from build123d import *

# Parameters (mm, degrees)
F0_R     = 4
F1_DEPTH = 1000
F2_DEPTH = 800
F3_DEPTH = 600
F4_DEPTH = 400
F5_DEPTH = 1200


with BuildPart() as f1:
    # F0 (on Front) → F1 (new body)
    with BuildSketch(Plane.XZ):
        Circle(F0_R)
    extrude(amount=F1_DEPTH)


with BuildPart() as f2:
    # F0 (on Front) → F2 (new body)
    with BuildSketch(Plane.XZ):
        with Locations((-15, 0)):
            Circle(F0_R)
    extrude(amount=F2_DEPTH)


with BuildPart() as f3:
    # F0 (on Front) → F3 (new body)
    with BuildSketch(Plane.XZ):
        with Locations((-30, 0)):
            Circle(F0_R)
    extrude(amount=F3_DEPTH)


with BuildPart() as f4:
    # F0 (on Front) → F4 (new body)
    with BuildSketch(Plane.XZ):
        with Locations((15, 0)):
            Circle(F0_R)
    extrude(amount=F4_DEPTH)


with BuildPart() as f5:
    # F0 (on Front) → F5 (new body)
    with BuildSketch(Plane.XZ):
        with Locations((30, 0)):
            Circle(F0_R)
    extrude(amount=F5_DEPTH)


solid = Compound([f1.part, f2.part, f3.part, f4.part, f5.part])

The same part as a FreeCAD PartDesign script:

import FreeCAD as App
import Part
import Sketcher
from FreeCAD import Vector
Q = App.Units.Quantity

doc = App.newDocument("Part")
body = doc.addObject("PartDesign::Body", "Body")

# Sketch on XZ plane
sketch1 = body.newObject("Sketcher::SketchObject", "Sketch")
sketch1.AttachmentSupport = (doc.getObject("XZ_Plane"), [""])
sketch1.MapMode = "FlatFace"
sketch1.addGeometry(Part.Circle(Vector(0, 0, 0), Vector(0, 0, 1), 4), False)
sketch1.addConstraint([
    Sketcher.Constraint("Coincident", 0, 3, -1, 1),
    Sketcher.Constraint("Diameter", 0, Q("8 mm")),
])
pad1 = body.newObject("PartDesign::Pad", "Pad")
pad1.Profile = sketch1
pad1.Length = 1000
body2 = doc.addObject("PartDesign::Body", "Body001")

# Sketch on XZ plane
sketch2 = body2.newObject("Sketcher::SketchObject", "Sketch001")
sketch2.AttachmentSupport = (doc.getObject("XZ_Plane001"), [""])
sketch2.MapMode = "FlatFace"
sketch2.addGeometry(Part.Circle(Vector(-15, 0, 0), Vector(0, 0, 1), 4), False)
sketch2.addConstraint([
    Sketcher.Constraint("PointOnObject", 0, 3, -1),
    Sketcher.Constraint("Diameter", 0, Q("8 mm")),
    Sketcher.Constraint("DistanceX", 0, 3, -1, 1, Q("15 mm")),
])
pad2 = body2.newObject("PartDesign::Pad", "Pad001")
pad2.Profile = sketch2
pad2.Length = 800
body3 = doc.addObject("PartDesign::Body", "Body002")

# Sketch on XZ plane
sketch3 = body3.newObject("Sketcher::SketchObject", "Sketch002")
sketch3.AttachmentSupport = (doc.getObject("XZ_Plane002"), [""])
sketch3.MapMode = "FlatFace"
sketch3.addGeometry(Part.Circle(Vector(-30, 0, 0), Vector(0, 0, 1), 4), False)
sketch3.addConstraint([
    Sketcher.Constraint("PointOnObject", 0, 3, -1),
    Sketcher.Constraint("Diameter", 0, Q("8 mm")),
    Sketcher.Constraint("DistanceX", 0, 3, -1, 1, Q("30 mm")),
])
pad3 = body3.newObject("PartDesign::Pad", "Pad002")
pad3.Profile = sketch3
pad3.Length = 600
body4 = doc.addObject("PartDesign::Body", "Body003")

# Sketch on XZ plane
sketch4 = body4.newObject("Sketcher::SketchObject", "Sketch003")
sketch4.AttachmentSupport = (doc.getObject("XZ_Plane003"), [""])
sketch4.MapMode = "FlatFace"
sketch4.addGeometry(Part.Circle(Vector(15, 0, 0), Vector(0, 0, 1), 4), False)
sketch4.addConstraint([
    Sketcher.Constraint("PointOnObject", 0, 3, -1),
    Sketcher.Constraint("Diameter", 0, Q("8 mm")),
    Sketcher.Constraint("DistanceX", -1, 1, 0, 3, Q("15 mm")),
])
pad4 = body4.newObject("PartDesign::Pad", "Pad003")
pad4.Profile = sketch4
pad4.Length = 400
body5 = doc.addObject("PartDesign::Body", "Body004")

# Sketch on XZ plane
sketch5 = body5.newObject("Sketcher::SketchObject", "Sketch004")
sketch5.AttachmentSupport = (doc.getObject("XZ_Plane004"), [""])
sketch5.MapMode = "FlatFace"
sketch5.addGeometry(Part.Circle(Vector(30, 0, 0), Vector(0, 0, 1), 4), False)
sketch5.addConstraint([
    Sketcher.Constraint("PointOnObject", 0, 3, -1),
    Sketcher.Constraint("Diameter", 0, Q("8 mm")),
    Sketcher.Constraint("DistanceX", -1, 1, 0, 3, Q("30 mm")),
])
pad5 = body5.newObject("PartDesign::Pad", "Pad004")
pad5.Profile = sketch5
pad5.Length = 1200

doc.recompute()
